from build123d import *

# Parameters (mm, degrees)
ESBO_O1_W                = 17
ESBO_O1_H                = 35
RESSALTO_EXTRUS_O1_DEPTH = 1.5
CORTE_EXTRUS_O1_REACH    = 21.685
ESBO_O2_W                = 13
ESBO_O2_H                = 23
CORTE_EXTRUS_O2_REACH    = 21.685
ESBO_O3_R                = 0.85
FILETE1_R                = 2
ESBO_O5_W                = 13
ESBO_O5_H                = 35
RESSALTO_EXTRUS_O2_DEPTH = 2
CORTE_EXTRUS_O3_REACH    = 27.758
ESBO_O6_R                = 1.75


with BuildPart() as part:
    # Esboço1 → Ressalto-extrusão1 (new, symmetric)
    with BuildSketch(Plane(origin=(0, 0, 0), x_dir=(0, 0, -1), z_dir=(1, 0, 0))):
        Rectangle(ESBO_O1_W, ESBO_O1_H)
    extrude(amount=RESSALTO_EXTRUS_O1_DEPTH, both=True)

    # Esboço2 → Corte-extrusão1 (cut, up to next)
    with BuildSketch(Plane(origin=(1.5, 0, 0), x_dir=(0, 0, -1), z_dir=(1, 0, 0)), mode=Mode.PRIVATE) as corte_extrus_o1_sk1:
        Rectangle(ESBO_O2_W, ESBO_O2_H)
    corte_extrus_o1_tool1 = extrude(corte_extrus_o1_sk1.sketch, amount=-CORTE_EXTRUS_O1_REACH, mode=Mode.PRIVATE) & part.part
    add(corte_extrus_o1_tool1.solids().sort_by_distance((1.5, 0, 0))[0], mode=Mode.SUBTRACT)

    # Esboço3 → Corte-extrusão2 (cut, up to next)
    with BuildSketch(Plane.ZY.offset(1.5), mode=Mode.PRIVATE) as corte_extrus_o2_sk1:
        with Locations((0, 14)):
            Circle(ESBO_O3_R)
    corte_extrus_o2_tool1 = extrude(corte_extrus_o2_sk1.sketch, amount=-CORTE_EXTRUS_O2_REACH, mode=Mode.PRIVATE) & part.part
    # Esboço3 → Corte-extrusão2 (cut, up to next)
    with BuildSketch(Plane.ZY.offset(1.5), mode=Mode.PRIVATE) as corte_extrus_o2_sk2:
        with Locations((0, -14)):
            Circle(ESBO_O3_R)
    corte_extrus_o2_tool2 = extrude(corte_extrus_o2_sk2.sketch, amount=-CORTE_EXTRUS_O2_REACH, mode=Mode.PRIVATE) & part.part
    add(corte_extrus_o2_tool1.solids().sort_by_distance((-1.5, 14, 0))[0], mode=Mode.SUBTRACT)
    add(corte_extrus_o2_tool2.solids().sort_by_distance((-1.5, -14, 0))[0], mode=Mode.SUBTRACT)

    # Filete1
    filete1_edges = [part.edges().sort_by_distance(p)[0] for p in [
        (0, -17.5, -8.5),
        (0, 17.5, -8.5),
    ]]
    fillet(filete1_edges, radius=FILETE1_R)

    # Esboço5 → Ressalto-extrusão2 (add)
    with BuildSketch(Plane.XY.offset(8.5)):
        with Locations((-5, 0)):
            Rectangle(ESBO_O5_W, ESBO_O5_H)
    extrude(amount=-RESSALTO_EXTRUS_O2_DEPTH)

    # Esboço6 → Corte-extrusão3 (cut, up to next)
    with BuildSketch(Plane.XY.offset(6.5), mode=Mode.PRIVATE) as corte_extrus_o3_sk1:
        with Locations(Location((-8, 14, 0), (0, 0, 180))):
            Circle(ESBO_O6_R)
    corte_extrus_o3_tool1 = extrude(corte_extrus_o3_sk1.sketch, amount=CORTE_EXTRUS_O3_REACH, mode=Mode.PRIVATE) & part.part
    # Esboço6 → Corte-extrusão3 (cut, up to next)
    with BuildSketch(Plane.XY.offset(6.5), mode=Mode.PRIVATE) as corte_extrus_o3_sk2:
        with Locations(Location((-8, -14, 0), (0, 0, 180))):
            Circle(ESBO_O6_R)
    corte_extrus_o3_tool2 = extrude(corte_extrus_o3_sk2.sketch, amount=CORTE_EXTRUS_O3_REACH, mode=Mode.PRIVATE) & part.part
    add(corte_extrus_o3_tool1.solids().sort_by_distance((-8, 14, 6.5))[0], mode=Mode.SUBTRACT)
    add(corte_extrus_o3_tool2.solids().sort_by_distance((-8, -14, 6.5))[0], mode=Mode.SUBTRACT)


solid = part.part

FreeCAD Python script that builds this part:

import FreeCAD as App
import Part
import Sketcher
Q = App.Units.Quantity


def edges_at(feature, points):
    """Names of the edges that pass closest to the given points."""
    edges = feature.Shape.Edges
    near = lambda p: min(range(len(edges)), key=lambda i: edges[i].distToShape(Part.Vertex(*p))[0])
    return sorted({f"Edge{near(p) + 1}" for p in points})

doc = App.newDocument("Part")
body = doc.addObject("PartDesign::Body", "Body")

sketch1 = body.newObject("Sketcher::SketchObject", "Sketch")
sketch1.AttachmentSupport = (doc.getObject("YZ_Plane"), [""])
sketch1.MapMode = "FlatFace"
sketch1.addGeometry(Part.LineSegment(App.Vector(17.5, 8.5, 0), App.Vector(-17.5, 8.5, 0)), False)
sketch1.addGeometry(Part.LineSegment(App.Vector(-17.5, 8.5, 0), App.Vector(-17.5, -8.5, 0)), False)
sketch1.addGeometry(Part.LineSegment(App.Vector(-17.5, -8.5, 0), App.Vector(17.5, -8.5, 0)), False)
sketch1.addGeometry(Part.LineSegment(App.Vector(17.5, -8.5, 0), App.Vector(17.5, 8.5, 0)), False)
sketch1.addConstraint(Sketcher.Constraint("Coincident", 0, 2, 1, 1))
sketch1.addConstraint(Sketcher.Constraint("Coincident", 1, 2, 2, 1))
sketch1.addConstraint(Sketcher.Constraint("Coincident", 2, 2, 3, 1))
sketch1.addConstraint(Sketcher.Constraint("Coincident", 3, 2, 0, 1))
sketch1.addConstraint(Sketcher.Constraint("Horizontal", 0))
sketch1.addConstraint(Sketcher.Constraint("Vertical", 1))
sketch1.addConstraint(Sketcher.Constraint("Horizontal", 2))
sketch1.addConstraint(Sketcher.Constraint("Vertical", 3))
sketch1.addConstraint(Sketcher.Constraint("Symmetric", 0, 2, 2, 2, -1, 1))
sketch1.addConstraint(Sketcher.Constraint("DistanceX", 0, 2, 0, 1, Q("35 mm")))
sketch1.addConstraint(Sketcher.Constraint("DistanceY", 1, 2, 1, 1, Q("17 mm")))
pad1 = body.newObject("PartDesign::Pad", "Pad")
pad1.Profile = sketch1
pad1.Length = 3
pad1.Midplane = True

sketch2 = body.newObject("Sketcher::SketchObject", "Sketch001")
sketch2.AttachmentSupport = (doc.getObject("YZ_Plane"), [""])
sketch2.MapMode = "FlatFace"
sketch2.AttachmentOffset = App.Placement(App.Vector(0, 0, 1.5), App.Rotation())
sketch2.addGeometry(Part.LineSegment(App.Vector(11.5, 6.5, 0), App.Vector(-11.5, 6.5, 0)), False)
sketch2.addGeometry(Part.LineSegment(App.Vector(-11.5, 6.5, 0), App.Vector(-11.5, -6.5, 0)), False)
sketch2.addGeometry(Part.LineSegment(App.Vector(-11.5, -6.5, 0), App.Vector(11.5, -6.5, 0)), False)
sketch2.addGeometry(Part.LineSegment(App.Vector(11.5, -6.5, 0), App.Vector(11.5, 6.5, 0)), False)
sketch2.addConstraint(Sketcher.Constraint("Coincident", 0, 2, 1, 1))
sketch2.addConstraint(Sketcher.Constraint("Coincident", 1, 2, 2, 1))
sketch2.addConstraint(Sketcher.Constraint("Coincident", 2, 2, 3, 1))
sketch2.addConstraint(Sketcher.Constraint("Coincident", 3, 2, 0, 1))
sketch2.addConstraint(Sketcher.Constraint("Horizontal", 0))
sketch2.addConstraint(Sketcher.Constraint("Vertical", 1))
sketch2.addConstraint(Sketcher.Constraint("Horizontal", 2))
sketch2.addConstraint(Sketcher.Constraint("Vertical", 3))
sketch2.addConstraint(Sketcher.Constraint("Symmetric", 0, 2, 2, 2, -1, 1))
sketch2.addConstraint(Sketcher.Constraint("DistanceX", 0, 2, 0, 1, Q("23 mm")))
sketch2.addConstraint(Sketcher.Constraint("DistanceY", 1, 2, 1, 1, Q("13 mm")))
pocket1 = body.newObject("PartDesign::Pocket", "Pocket")
pocket1.Profile = sketch2
pocket1.Type = "UpToFirst"

sketch3 = body.newObject("Sketcher::SketchObject", "Sketch002")
sketch3.AttachmentSupport = (doc.getObject("YZ_Plane"), [""])
sketch3.MapMode = "FlatFace"
sketch3.AttachmentOffset = App.Placement(App.Vector(0, 0, -1.5), App.Rotation())
sketch3.addGeometry(Part.Circle(App.Vector(14, 0, 0), App.Vector(0, 0, 1), 0.85), False)
sketch3.addConstraint(Sketcher.Constraint("PointOnObject", 0, 3, -1))
sketch3.addConstraint(Sketcher.Constraint("Diameter", 0, Q("1.7 mm")))
sketch3.addConstraint(Sketcher.Constraint("DistanceX", -1, 1, 0, 3, Q("14 mm")))
pocket2 = body.newObject("PartDesign::Pocket", "Pocket001")
pocket2.Profile = sketch3
pocket2.Type = "UpToFirst"
pocket2.Reversed = True

sketch4 = body.newObject("Sketcher::SketchObject", "Sketch003")
sketch4.AttachmentSupport = (doc.getObject("YZ_Plane"), [""])
sketch4.MapMode = "FlatFace"
sketch4.AttachmentOffset = App.Placement(App.Vector(0, 0, -1.5), App.Rotation())
sketch4.addGeometry(Part.Circle(App.Vector(-14, 0, 0), App.Vector(0, 0, 1), 0.85), False)
sketch4.addConstraint(Sketcher.Constraint("PointOnObject", 0, 3, -1))
sketch4.addConstraint(Sketcher.Constraint("Diameter", 0, Q("1.7 mm")))
sketch4.addConstraint(Sketcher.Constraint("DistanceX", 0, 3, -1, 1, Q("14 mm")))
pocket3 = body.newObject("PartDesign::Pocket", "Pocket002")
pocket3.Profile = sketch4
pocket3.Type = "UpToFirst"
pocket3.Reversed = True
doc.recompute()

fillet = body.newObject("PartDesign::Fillet", "Fillet")
fillet.Base = (pocket3, edges_at(pocket3, [(0, -17.5, -8.5), (0, 17.5, -8.5)]))
fillet.Radius = 2

sketch5 = body.newObject("Sketcher::SketchObject", "Sketch004")
sketch5.AttachmentSupport = (doc.getObject("XY_Plane"), [""])
sketch5.MapMode = "FlatFace"
sketch5.AttachmentOffset = App.Placement(App.Vector(0, 0, 8.5), App.Rotation())
sketch5.addGeometry(Part.LineSegment(App.Vector(-11.5, 17.5, 0), App.Vector(-11.5, -17.5, 0)), False)
sketch5.addGeometry(Part.LineSegment(App.Vector(-11.5, -17.5, 0), App.Vector(1.5, -17.5, 0)), False)
sketch5.addGeometry(Part.LineSegment(App.Vector(1.5, -17.5, 0), App.Vector(1.5, 17.5, 0)), False)
sketch5.addGeometry(Part.LineSegment(App.Vector(1.5, 17.5, 0), App.Vector(-11.5, 17.5, 0)), False)
sketch5.addConstraint(Sketcher.Constraint("Coincident", 0, 2, 1, 1))
sketch5.addConstraint(Sketcher.Constraint("Coincident", 1, 2, 2, 1))
sketch5.addConstraint(Sketcher.Constraint("Coincident", 2, 2, 3, 1))
sketch5.addConstraint(Sketcher.Constraint("Coincident", 3, 2, 0, 1))
sketch5.addConstraint(Sketcher.Constraint("Vertical", 0))
sketch5.addConstraint(Sketcher.Constraint("Horizontal", 1))
sketch5.addConstraint(Sketcher.Constraint("Vertical", 2))
sketch5.addConstraint(Sketcher.Constraint("Horizontal", 3))
sketch5.addConstraint(Sketcher.Constraint("DistanceX", 1, 1, 1, 2, Q("13 mm")))
sketch5.addConstraint(Sketcher.Constraint("DistanceY", 0, 2, 0, 1, Q("35 mm")))
sketch5.addConstraint(Sketcher.Constraint("DistanceX", 0, 2, -1, 1, Q("11.5 mm")))
sketch5.addConstraint(Sketcher.Constraint("DistanceY", 0, 2, -1, 1, Q("17.5 mm")))
pad2 = body.newObject("PartDesign::Pad", "Pad001")
pad2.Profile = sketch5
pad2.Length = 2
pad2.Reversed = True

sketch6 = body.newObject("Sketcher::SketchObject", "Sketch005")
sketch6.AttachmentSupport = (doc.getObject("XY_Plane"), [""])
sketch6.MapMode = "FlatFace"
sketch6.AttachmentOffset = App.Placement(App.Vector(0, 0, 6.5), App.Rotation())
sketch6.addGeometry(Part.Circle(App.Vector(-8, 14, 0), App.Vector(0, 0, 1), 1.75), False)
sketch6.addConstraint(Sketcher.Constraint("Diameter", 0, Q("3.5 mm")))
sketch6.addConstraint(Sketcher.Constraint("DistanceX", 0, 3, -1, 1, Q("8 mm")))
sketch6.addConstraint(Sketcher.Constraint("DistanceY", -1, 1, 0, 3, Q("14 mm")))
pocket4 = body.newObject("PartDesign::Pocket", "Pocket003")
pocket4.Profile = sketch6
pocket4.Type = "UpToFirst"
pocket4.Reversed = True

sketch7 = body.newObject("Sketcher::SketchObject", "Sketch006")
sketch7.AttachmentSupport = (doc.getObject("XY_Plane"), [""])
sketch7.MapMode = "FlatFace"
sketch7.AttachmentOffset = App.Placement(App.Vector(0, 0, 6.5), App.Rotation())
sketch7.addGeometry(Part.Circle(App.Vector(-8, -14, 0), App.Vector(0, 0, 1), 1.75), False)
sketch7.addConstraint(Sketcher.Constraint("Diameter", 0, Q("3.5 mm")))
sketch7.addConstraint(Sketcher.Constraint("DistanceX", 0, 3, -1, 1, Q("8 mm")))
sketch7.addConstraint(Sketcher.Constraint("DistanceY", 0, 3, -1, 1, Q("14 mm")))
pocket5 = body.newObject("PartDesign::Pocket", "Pocket004")
pocket5.Profile = sketch7
pocket5.Type = "UpToFirst"
pocket5.Reversed = True

doc.recompute()
